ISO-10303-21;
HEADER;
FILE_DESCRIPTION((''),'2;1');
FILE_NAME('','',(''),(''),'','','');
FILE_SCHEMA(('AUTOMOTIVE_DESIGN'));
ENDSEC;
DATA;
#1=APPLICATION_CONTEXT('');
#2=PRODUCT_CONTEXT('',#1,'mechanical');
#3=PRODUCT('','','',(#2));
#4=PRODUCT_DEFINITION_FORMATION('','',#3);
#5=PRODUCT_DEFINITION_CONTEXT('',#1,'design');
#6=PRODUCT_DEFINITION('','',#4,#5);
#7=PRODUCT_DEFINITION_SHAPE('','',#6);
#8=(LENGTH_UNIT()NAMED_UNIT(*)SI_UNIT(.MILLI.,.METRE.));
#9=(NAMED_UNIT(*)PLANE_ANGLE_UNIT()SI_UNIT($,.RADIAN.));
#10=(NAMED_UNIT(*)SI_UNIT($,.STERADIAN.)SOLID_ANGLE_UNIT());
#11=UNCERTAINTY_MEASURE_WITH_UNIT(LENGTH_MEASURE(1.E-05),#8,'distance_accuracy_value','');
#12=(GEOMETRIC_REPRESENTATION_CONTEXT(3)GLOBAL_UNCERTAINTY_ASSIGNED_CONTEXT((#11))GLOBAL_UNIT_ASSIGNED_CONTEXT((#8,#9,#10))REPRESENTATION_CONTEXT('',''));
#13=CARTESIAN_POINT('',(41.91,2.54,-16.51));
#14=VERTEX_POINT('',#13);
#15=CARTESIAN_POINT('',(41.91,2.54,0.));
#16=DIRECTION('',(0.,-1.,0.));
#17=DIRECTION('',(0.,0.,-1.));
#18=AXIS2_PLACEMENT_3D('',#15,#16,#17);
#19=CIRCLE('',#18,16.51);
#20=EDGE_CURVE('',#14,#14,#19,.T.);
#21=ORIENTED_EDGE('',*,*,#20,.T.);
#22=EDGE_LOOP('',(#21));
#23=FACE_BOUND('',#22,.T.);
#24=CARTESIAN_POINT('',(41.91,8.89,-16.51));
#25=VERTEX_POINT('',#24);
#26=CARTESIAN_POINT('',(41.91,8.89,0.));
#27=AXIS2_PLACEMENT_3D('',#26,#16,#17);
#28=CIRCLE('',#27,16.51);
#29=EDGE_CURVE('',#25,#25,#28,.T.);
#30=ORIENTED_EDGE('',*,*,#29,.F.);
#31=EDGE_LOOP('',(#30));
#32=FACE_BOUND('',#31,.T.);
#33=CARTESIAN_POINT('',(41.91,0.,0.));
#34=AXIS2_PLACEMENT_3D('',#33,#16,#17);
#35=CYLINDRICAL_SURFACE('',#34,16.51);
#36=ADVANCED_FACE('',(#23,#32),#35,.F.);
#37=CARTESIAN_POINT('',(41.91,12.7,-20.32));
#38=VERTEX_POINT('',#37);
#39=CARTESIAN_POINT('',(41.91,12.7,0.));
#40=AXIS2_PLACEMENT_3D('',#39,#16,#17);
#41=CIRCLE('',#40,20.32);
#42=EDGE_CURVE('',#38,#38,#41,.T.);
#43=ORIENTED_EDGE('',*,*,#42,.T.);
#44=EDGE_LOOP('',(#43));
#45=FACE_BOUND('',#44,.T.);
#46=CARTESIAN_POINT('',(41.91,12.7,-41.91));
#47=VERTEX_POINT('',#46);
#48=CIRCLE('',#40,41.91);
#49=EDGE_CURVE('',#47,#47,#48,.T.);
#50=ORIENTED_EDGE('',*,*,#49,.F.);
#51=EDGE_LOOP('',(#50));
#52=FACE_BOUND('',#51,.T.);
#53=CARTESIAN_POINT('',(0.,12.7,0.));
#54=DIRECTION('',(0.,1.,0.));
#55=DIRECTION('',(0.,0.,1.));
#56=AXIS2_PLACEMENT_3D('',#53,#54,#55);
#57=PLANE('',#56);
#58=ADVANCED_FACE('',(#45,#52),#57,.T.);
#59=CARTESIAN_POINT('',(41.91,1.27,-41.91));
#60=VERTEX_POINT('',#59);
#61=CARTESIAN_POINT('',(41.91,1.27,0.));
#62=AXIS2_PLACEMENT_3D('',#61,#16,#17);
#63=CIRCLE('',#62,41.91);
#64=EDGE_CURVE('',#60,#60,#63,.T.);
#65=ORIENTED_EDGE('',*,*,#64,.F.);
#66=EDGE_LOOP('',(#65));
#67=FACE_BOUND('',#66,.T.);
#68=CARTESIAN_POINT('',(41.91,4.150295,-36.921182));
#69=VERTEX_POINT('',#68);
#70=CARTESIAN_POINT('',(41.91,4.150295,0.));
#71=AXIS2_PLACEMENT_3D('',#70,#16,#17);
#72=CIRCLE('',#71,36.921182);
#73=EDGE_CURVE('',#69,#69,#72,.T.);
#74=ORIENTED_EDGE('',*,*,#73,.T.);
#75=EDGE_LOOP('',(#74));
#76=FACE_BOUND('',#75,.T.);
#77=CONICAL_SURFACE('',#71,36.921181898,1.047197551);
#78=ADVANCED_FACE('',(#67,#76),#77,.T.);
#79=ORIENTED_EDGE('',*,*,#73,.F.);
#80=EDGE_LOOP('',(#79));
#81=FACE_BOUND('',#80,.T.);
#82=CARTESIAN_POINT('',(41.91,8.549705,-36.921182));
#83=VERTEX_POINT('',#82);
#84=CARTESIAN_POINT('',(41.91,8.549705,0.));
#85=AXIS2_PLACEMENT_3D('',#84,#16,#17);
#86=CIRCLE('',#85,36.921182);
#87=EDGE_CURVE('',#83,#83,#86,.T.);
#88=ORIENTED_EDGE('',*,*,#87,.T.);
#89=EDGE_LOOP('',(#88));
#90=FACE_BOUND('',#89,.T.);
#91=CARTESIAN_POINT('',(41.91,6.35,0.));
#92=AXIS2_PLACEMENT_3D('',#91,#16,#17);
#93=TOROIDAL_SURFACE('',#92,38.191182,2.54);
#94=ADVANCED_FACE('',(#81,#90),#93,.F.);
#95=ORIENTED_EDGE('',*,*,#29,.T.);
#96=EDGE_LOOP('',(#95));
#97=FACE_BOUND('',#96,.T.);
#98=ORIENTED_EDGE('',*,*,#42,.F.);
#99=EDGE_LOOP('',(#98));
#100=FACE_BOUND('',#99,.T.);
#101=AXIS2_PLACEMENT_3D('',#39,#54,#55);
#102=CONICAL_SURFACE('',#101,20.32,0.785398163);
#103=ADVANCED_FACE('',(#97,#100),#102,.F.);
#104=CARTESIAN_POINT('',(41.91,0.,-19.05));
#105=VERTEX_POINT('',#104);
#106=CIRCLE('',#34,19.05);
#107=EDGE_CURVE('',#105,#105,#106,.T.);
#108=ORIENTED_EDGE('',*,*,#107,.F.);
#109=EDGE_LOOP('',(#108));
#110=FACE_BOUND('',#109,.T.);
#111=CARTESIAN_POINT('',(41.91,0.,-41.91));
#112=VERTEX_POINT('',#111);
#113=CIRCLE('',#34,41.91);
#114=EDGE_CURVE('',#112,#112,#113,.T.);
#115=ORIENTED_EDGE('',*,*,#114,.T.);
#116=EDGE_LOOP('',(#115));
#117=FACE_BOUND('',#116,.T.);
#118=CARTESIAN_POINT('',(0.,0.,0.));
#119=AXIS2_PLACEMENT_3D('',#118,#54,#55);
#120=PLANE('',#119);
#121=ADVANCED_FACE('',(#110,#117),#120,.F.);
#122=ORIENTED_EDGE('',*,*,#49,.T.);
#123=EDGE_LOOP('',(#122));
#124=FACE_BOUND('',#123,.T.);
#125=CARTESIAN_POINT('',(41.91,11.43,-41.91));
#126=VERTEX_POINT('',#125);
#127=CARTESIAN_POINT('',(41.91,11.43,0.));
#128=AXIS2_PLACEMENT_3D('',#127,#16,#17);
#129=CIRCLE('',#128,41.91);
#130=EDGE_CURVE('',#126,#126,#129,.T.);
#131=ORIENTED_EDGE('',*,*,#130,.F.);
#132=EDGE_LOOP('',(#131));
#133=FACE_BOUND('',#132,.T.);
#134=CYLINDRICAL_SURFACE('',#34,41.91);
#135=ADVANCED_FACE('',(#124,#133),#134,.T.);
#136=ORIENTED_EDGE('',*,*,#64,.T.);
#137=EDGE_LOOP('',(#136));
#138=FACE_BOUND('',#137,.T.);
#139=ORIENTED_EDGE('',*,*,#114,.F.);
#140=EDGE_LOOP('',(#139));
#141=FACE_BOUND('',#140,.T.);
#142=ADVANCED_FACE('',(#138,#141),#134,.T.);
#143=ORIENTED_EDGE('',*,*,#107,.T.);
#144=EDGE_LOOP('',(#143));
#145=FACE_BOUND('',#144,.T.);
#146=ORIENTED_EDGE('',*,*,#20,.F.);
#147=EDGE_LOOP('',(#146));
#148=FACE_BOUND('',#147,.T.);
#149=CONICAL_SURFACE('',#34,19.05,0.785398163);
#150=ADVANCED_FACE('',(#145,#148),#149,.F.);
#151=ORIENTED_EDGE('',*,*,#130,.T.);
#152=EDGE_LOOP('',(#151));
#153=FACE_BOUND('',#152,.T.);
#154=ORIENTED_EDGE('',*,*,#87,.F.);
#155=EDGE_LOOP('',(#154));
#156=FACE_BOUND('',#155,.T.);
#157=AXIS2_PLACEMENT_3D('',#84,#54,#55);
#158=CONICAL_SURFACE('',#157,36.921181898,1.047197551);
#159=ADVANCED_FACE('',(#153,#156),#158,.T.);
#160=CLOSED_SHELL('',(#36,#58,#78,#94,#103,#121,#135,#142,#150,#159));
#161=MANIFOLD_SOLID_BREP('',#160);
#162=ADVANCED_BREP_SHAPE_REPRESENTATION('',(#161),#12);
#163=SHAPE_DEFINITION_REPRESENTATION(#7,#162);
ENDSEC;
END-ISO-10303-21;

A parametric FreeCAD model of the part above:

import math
import FreeCAD as App
import Part
import Sketcher

V = App.Vector
Q = App.Units.Quantity

doc = App.newDocument("Part")
body = doc.addObject("PartDesign::Body", "Body")

# Sketch on XY plane
sketch1 = body.newObject("Sketcher::SketchObject", "Sketch")
sketch1.AttachmentSupport = (doc.getObject("XY_Plane"), [""])
sketch1.MapMode = "FlatFace"
sketch1.addGeometry(Part.LineSegment(V(0, 0, 0), V(22.9, 0, 0)), False)
sketch1.addGeometry(Part.LineSegment(V(22.9, 0, 0), V(25.4, 2.5, 0)), False)
sketch1.addGeometry(Part.LineSegment(V(25.4, 2.5, 0), V(25.4, 8.9, 0)), False)
sketch1.addGeometry(Part.LineSegment(V(25.4, 8.9, 0), V(21.6, 12.7, 0)), False)
sketch1.addGeometry(Part.LineSegment(V(21.6, 12.7, 0), V(0, 12.7, 0)), False)
sketch1.addGeometry(Part.LineSegment(V(0, 12.7, 0), V(0, 11.4, 0)), False)
sketch1.addGeometry(Part.LineSegment(V(0, 11.4, 0), V(5, 8.5, 0)), False)
sketch1.addGeometry(Part.ArcOfCircle(Part.Circle(V(3.7, 6.3, 0), V(0, 0, 1), 2.5), math.radians(-60), math.radians(60)), False)
sketch1.addGeometry(Part.LineSegment(V(5, 4.2, 0), V(0, 1.3, 0)), False)
sketch1.addGeometry(Part.LineSegment(V(0, 1.3, 0), V(0, 0, 0)), False)
sketch1.addGeometry(Part.LineSegment(V(41.9, 0, 0), V(41.9, 12.7, 0)), True)  # axis
sketch1.addConstraint(Sketcher.Constraint("Coincident", 0, 2, 1, 1))
sketch1.addConstraint(Sketcher.Constraint("Coincident", 1, 2, 2, 1))
sketch1.addConstraint(Sketcher.Constraint("Coincident", 2, 2, 3, 1))
sketch1.addConstraint(Sketcher.Constraint("Coincident", 3, 2, 4, 1))
sketch1.addConstraint(Sketcher.Constraint("Coincident", 4, 2, 5, 1))
sketch1.addConstraint(Sketcher.Constraint("Coincident", 5, 2, 6, 1))
sketch1.addConstraint(Sketcher.Constraint("Tangent", 6, 2, 7, 2))
sketch1.addConstraint(Sketcher.Constraint("Tangent", 7, 1, 8, 1))
sketch1.addConstraint(Sketcher.Constraint("Coincident", 8, 2, 9, 1))
sketch1.addConstraint(Sketcher.Constraint("Coincident", 9, 2, 0, 1))
sketch1.addConstraint(Sketcher.Constraint("Horizontal", 0))
sketch1.addConstraint(Sketcher.Constraint("Vertical", 2))
sketch1.addConstraint(Sketcher.Constraint("Horizontal", 4))
sketch1.addConstraint(Sketcher.Constraint("Vertical", 5))
sketch1.addConstraint(Sketcher.Constraint("Vertical", 9))
sketch1.addConstraint(Sketcher.Constraint("Vertical", 10))
sketch1.addConstraint(Sketcher.Constraint("Coincident", 9, 2, -1, 1))
sketch1.addConstraint(Sketcher.Constraint("PointOnObject", 4, 2, -2))
sketch1.addConstraint(Sketcher.Constraint("PointOnObject", 10, 1, -1))
sketch1.addConstraint(Sketcher.Constraint("Perpendicular", 1, 3))
sketch1.addConstraint(Sketcher.Constraint("Horizontal", 4, 2, 10, 2))
sketch1.addConstraint(Sketcher.Constraint("Vertical", 6, 2, 7, 1))
sketch1.addConstraint(Sketcher.Constraint("Equal", 5, 9))
sketch1.addConstraint(Sketcher.Constraint("Radius", 7, Q("0.1 in")))
sketch1.addConstraint(Sketcher.Constraint("DistanceX", 0, 1, 0, 2, Q("0.9 in")))
sketch1.addConstraint(Sketcher.Constraint("DistanceY", 10, 1, 10, 2, Q("0.5 in")))
sketch1.addConstraint(Sketcher.Constraint("DistanceX", -1, 1, 1, 2, Q("1 in")))
sketch1.addConstraint(Sketcher.Constraint("Angle", 1, Q("45 deg")))
sketch1.addConstraint(Sketcher.Constraint("Angle", 6, Q("-30 deg")))
sketch1.addConstraint(Sketcher.Constraint("DistanceX", 4, 2, 4, 1, Q("0.85 in")))
sketch1.addConstraint(Sketcher.Constraint("DistanceY", 5, 2, 5, 1, Q("0.05 in")))
sketch1.addConstraint(Sketcher.Constraint("DistanceX", 3, 2, 10, 1, Q("0.8 in")))
revolution = body.newObject("PartDesign::Revolution", "Revolution")
revolution.Profile = sketch1
revolution.ReferenceAxis = (sketch1, ["Axis0"])
revolution.Angle = 360

doc.recompute()
